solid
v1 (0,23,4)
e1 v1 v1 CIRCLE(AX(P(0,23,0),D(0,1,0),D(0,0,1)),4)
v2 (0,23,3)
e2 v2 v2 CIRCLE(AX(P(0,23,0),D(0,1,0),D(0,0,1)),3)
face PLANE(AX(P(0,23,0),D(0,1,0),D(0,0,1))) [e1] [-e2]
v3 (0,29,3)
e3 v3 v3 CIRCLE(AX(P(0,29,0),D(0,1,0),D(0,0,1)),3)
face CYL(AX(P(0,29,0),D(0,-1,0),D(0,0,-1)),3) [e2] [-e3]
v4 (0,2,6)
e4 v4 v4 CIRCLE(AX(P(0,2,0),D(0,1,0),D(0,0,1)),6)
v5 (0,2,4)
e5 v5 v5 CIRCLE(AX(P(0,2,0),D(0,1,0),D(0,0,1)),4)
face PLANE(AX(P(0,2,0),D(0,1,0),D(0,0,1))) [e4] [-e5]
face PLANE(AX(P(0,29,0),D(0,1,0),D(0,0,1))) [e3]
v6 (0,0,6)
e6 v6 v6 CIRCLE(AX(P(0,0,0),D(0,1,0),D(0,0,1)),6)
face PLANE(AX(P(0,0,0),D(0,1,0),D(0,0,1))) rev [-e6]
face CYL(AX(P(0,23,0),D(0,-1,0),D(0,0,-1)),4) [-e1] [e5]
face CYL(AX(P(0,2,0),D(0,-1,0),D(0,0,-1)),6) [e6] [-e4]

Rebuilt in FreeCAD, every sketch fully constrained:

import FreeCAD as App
import Part
import Sketcher
from FreeCAD import Vector

doc = App.newDocument("Part")
body = doc.addObject("PartDesign::Body", "Body")

# Sketch on XZ plane
sketch1 = body.newObject("Sketcher::SketchObject", "Sketch")
sketch1.AttachmentSupport = (doc.getObject("XZ_Plane"), [""])
sketch1.MapMode = "FlatFace"
sketch1.addGeometry(Part.Circle(Vector(0, 0, 0), Vector(0, 0, 1), 6), False)
sketch1.addConstraint(Sketcher.Constraint("Coincident", 0, 3, -1, 1))
sketch1.addConstraint(Sketcher.Constraint("Diameter", 0, 12.0))
pad1 = body.newObject("PartDesign::Pad", "Pad")
pad1.Profile = sketch1
pad1.Length = 2
pad1.Reversed = True

# Sketch on XZ plane
sketch2 = body.newObject("Sketcher::SketchObject", "Sketch001")
sketch2.AttachmentSupport = (doc.getObject("XZ_Plane"), [""])
sketch2.MapMode = "FlatFace"
sketch2.AttachmentOffset = App.Placement(Vector(0, 0, -2), App.Rotation())
sketch2.addGeometry(Part.Circle(Vector(0, 0, 0), Vector(0, 0, 1), 4), False)
sketch2.addConstraint(Sketcher.Constraint("Coincident", 0, 3, -1, 1))
sketch2.addConstraint(Sketcher.Constraint("Diameter", 0, 8.0))
pad2 = body.newObject("PartDesign::Pad", "Pad001")
pad2.Profile = sketch2
pad2.Length = 21
pad2.Reversed = True

# Sketch on XZ plane
sketch3 = body.newObject("Sketcher::SketchObject", "Sketch002")
sketch3.AttachmentSupport = (doc.getObject("XZ_Plane"), [""])
sketch3.MapMode = "FlatFace"
sketch3.AttachmentOffset = App.Placement(Vector(0, 0, -23), App.Rotation())
sketch3.addGeometry(Part.Circle(Vector(0, 0, 0), Vector(0, 0, 1), 3), False)
sketch3.addConstraint(Sketcher.Constraint("Coincident", 0, 3, -1, 1))
sketch3.addConstraint(Sketcher.Constraint("Diameter", 0, 6.0))
pad3 = body.newObject("PartDesign::Pad", "Pad002")
pad3.Profile = sketch3
pad3.Length = 6
pad3.Reversed = True

doc.recompute()
